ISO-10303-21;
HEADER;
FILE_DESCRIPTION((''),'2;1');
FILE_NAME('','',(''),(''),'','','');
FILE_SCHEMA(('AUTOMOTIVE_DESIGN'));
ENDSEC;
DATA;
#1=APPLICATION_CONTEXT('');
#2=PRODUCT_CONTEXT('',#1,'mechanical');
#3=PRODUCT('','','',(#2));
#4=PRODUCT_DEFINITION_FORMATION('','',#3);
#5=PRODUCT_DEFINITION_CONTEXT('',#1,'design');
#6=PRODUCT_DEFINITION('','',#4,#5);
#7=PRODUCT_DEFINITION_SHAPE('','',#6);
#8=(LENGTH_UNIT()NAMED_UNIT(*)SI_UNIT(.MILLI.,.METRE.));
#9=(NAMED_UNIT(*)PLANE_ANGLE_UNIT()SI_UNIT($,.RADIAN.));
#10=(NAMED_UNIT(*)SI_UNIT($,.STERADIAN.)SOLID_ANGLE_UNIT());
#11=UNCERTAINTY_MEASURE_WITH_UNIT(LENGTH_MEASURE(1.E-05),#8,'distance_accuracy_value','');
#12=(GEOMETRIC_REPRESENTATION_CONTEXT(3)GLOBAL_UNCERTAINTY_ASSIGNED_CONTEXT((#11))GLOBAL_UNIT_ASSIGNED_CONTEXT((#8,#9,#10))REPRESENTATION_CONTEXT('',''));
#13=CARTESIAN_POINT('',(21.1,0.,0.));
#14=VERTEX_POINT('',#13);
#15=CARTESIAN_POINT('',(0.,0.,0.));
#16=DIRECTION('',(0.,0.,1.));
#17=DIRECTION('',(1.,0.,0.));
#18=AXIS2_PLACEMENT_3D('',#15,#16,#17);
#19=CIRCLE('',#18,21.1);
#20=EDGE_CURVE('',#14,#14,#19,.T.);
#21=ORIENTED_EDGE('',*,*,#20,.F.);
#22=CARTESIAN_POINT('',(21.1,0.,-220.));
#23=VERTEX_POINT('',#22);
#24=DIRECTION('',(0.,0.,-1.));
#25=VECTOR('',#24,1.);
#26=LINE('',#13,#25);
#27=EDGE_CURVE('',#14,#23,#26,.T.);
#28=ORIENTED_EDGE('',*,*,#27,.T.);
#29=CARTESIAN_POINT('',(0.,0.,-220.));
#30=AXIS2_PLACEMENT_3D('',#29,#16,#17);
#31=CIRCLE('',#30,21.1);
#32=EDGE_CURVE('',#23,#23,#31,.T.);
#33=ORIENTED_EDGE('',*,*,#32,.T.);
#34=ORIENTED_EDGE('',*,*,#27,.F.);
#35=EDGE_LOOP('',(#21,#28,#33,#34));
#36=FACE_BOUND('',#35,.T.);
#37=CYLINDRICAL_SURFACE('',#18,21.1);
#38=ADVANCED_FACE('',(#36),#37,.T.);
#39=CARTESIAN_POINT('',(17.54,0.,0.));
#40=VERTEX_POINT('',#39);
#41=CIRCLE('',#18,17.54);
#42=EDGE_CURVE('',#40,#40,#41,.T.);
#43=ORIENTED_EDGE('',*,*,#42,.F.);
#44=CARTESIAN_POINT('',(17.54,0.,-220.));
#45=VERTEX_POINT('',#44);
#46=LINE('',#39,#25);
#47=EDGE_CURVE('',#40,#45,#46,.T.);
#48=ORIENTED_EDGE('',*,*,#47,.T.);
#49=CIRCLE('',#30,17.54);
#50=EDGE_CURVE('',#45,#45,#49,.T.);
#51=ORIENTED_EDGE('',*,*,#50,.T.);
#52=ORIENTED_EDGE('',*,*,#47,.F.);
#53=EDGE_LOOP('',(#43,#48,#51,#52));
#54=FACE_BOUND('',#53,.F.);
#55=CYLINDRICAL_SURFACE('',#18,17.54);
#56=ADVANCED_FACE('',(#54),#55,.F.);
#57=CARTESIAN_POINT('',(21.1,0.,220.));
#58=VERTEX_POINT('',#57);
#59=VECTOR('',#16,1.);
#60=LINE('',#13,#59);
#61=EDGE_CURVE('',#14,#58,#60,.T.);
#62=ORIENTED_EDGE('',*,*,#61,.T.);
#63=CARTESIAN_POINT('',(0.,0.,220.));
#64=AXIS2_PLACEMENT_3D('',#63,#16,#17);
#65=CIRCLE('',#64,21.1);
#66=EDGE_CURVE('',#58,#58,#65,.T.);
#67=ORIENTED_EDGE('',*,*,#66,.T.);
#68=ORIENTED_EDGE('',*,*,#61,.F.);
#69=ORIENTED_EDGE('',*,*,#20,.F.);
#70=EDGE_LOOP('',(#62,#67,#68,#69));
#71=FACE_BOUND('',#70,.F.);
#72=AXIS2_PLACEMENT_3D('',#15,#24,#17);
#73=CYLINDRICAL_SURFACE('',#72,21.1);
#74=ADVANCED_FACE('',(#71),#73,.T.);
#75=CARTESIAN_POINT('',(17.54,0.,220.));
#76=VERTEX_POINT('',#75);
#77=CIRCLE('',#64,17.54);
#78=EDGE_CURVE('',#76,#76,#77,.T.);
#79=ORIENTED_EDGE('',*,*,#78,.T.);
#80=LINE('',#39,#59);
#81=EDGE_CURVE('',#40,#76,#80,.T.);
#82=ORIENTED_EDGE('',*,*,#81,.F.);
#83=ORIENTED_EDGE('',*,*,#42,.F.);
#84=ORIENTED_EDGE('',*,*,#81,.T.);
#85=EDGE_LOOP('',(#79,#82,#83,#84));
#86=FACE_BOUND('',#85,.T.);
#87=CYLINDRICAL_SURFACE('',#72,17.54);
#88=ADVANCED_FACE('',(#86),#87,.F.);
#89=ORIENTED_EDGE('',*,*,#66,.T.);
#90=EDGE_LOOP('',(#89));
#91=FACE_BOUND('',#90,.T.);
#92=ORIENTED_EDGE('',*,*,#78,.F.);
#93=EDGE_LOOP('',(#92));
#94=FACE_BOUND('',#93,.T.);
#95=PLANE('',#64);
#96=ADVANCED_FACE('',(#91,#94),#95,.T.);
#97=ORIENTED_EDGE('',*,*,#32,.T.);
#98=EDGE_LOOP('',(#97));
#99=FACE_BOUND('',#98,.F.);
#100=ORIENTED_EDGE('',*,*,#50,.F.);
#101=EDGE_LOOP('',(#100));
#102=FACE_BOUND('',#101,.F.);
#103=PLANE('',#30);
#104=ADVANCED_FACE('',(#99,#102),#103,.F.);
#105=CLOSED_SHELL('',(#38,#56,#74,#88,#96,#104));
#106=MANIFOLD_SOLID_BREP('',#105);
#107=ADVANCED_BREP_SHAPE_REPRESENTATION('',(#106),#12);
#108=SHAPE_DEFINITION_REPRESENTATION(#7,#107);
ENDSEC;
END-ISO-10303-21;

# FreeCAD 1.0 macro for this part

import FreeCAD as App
import Part
import Sketcher

V = App.Vector
Q = App.Units.Quantity

doc = App.newDocument("Part")
body = doc.addObject("PartDesign::Body", "Body")

sketch1 = doc.addObject("Sketcher::SketchObject", "Sketch")
body.addObject(sketch1)
sketch1.AttachmentSupport = (doc.XY_Plane, [""])
sketch1.MapMode = "FlatFace"
sketch1.addGeometry([
    Part.Circle(V(0, 0, 0), V(0, 0, 1), 21.1),
    Part.Circle(V(0, 0, 0), V(0, 0, 1), 17.54),
], False)
sketch1.addConstraint([
    Sketcher.Constraint("Coincident", 0, 3, -1, 1),
    Sketcher.Constraint("Coincident", 1, 3, -1, 1),
    Sketcher.Constraint("Diameter", 0, Q("42.2 mm")),
    Sketcher.Constraint("Diameter", 1, Q("35.08 mm")),
])
pad1 = doc.addObject("PartDesign::Pad", "Pad")
body.addObject(pad1)
pad1.Profile = sketch1
pad1.Length = 440
pad1.Midplane = True

doc.recompute()
